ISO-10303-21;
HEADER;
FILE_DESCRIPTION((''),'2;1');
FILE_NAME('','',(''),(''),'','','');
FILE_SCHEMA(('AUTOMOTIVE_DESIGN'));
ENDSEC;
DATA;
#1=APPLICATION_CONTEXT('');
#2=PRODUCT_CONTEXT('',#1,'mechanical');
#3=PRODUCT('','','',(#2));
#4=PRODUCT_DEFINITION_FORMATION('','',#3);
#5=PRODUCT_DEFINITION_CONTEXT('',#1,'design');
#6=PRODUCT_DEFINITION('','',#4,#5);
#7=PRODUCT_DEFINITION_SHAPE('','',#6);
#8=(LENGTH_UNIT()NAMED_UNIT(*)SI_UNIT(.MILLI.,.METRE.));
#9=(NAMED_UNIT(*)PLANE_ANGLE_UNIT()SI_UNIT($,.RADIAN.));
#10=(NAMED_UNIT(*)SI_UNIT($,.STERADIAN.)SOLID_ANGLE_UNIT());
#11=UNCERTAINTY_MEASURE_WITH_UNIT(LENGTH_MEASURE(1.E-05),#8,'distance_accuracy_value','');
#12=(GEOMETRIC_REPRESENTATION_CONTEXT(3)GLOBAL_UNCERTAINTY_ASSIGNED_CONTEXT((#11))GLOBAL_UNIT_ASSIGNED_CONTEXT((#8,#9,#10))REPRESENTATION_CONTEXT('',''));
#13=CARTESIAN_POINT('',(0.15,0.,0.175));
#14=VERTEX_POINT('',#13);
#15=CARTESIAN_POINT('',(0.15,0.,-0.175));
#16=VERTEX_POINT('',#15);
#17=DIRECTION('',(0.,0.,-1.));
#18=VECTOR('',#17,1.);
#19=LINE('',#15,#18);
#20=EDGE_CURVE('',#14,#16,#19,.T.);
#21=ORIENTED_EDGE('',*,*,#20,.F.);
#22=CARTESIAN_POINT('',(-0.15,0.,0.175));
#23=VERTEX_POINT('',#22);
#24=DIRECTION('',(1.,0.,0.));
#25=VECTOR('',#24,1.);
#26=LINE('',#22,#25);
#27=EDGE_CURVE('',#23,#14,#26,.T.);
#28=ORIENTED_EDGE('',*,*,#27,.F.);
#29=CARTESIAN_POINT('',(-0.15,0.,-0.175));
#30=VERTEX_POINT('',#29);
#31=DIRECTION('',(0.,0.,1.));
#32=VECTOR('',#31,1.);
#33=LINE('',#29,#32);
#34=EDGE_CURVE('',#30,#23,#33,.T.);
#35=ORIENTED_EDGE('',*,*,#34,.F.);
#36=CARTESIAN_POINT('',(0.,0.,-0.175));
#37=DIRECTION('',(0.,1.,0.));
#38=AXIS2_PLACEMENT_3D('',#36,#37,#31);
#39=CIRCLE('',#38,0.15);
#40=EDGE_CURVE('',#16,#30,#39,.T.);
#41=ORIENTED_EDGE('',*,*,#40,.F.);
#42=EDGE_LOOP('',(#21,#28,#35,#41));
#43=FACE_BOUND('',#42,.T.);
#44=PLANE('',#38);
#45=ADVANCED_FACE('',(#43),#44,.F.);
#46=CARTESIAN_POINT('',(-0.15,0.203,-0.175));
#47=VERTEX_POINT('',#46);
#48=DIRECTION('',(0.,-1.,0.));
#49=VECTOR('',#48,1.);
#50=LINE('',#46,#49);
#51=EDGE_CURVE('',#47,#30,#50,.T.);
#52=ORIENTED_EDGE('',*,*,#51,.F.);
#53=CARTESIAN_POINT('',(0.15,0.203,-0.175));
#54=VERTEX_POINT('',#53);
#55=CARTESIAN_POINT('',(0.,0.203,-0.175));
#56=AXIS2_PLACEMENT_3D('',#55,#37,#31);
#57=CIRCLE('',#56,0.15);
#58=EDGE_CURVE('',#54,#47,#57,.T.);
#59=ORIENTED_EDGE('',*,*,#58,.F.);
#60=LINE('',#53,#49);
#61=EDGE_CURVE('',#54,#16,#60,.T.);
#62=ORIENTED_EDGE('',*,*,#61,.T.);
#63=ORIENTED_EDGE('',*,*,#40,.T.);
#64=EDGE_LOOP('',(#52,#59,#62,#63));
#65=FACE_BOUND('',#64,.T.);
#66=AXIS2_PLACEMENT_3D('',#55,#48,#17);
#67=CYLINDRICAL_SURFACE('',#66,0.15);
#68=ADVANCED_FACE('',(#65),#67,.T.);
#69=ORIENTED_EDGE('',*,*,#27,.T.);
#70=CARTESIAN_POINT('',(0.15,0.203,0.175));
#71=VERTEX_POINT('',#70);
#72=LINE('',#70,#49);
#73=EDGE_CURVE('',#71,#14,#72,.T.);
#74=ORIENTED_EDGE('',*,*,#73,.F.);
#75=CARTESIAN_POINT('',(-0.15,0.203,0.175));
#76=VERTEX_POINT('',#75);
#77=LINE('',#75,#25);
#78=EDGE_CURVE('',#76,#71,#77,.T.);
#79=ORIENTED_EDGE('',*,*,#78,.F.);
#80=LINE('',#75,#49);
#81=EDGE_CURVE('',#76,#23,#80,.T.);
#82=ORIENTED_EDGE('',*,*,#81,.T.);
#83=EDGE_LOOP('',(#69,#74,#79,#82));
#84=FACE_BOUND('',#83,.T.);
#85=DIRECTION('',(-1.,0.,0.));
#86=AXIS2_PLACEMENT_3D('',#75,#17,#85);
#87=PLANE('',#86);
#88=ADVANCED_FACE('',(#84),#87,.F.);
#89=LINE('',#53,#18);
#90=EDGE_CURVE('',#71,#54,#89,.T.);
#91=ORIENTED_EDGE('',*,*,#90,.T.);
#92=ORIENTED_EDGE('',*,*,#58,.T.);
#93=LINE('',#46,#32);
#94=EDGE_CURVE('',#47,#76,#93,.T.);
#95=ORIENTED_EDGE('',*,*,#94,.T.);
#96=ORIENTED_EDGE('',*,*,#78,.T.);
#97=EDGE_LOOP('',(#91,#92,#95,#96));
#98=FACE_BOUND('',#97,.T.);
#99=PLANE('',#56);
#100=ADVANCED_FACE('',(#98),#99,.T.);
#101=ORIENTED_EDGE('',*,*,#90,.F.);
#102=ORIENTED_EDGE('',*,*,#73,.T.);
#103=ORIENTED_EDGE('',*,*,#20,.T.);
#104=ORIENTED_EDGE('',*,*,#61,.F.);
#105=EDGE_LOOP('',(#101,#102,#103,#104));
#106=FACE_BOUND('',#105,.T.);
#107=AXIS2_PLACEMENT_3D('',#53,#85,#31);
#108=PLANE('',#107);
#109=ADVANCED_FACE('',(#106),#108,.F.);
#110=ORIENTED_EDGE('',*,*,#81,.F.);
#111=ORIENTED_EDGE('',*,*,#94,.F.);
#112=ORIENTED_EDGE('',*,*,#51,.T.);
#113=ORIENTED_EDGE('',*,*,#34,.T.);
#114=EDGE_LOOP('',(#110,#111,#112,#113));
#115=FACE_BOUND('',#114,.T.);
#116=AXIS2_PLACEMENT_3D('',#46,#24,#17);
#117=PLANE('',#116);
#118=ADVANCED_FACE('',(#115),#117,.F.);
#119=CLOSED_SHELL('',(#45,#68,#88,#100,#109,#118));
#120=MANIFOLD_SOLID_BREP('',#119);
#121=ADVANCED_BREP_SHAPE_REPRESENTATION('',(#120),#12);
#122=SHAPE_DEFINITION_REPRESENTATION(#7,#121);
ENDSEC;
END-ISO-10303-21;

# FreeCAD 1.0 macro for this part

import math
import FreeCAD as App
import Part
import Sketcher

V = App.Vector

doc = App.newDocument("Part")
body = doc.addObject("PartDesign::Body", "Body")

sketch1 = body.newObject("Sketcher::SketchObject", "Sketch")
sketch1.AttachmentSupport = (doc.getObject("XZ_Plane"), [""])
sketch1.MapMode = "FlatFace"
sketch1.addGeometry([
    Part.LineSegment(V(-0.15, -0.175, 0), V(-0.15, 0.175, 0)),
    Part.LineSegment(V(-0.15, 0.175, 0), V(0.15, 0.175, 0)),
    Part.LineSegment(V(0.15, 0.175, 0), V(0.15, -0.175, 0)),
    Part.ArcOfCircle(Part.Circle(V(0, -0.175, 0), V(0, 0, 1), 0.15), math.radians(180), math.radians(360)),
], False)
sketch1.addConstraint([
    Sketcher.Constraint("Coincident", 0, 2, 1, 1),
    Sketcher.Constraint("Coincident", 1, 2, 2, 1),
    Sketcher.Constraint("Tangent", 2, 2, 3, 2),
    Sketcher.Constraint("Tangent", 3, 1, 0, 1),
    Sketcher.Constraint("Vertical", 0),
    Sketcher.Constraint("Horizontal", 1),
    Sketcher.Constraint("Vertical", 2),
    Sketcher.Constraint("Symmetric", 0, 2, 2, 2, -1, 1),
    Sketcher.Constraint("Radius", 3, 0.15),
    Sketcher.Constraint("DistanceY", 0, 1, 0, 2, 0.35),
])
pad1 = body.newObject("PartDesign::Pad", "Pad")
pad1.Profile = sketch1
pad1.Length = 0.203
pad1.Reversed = True

doc.recompute()
